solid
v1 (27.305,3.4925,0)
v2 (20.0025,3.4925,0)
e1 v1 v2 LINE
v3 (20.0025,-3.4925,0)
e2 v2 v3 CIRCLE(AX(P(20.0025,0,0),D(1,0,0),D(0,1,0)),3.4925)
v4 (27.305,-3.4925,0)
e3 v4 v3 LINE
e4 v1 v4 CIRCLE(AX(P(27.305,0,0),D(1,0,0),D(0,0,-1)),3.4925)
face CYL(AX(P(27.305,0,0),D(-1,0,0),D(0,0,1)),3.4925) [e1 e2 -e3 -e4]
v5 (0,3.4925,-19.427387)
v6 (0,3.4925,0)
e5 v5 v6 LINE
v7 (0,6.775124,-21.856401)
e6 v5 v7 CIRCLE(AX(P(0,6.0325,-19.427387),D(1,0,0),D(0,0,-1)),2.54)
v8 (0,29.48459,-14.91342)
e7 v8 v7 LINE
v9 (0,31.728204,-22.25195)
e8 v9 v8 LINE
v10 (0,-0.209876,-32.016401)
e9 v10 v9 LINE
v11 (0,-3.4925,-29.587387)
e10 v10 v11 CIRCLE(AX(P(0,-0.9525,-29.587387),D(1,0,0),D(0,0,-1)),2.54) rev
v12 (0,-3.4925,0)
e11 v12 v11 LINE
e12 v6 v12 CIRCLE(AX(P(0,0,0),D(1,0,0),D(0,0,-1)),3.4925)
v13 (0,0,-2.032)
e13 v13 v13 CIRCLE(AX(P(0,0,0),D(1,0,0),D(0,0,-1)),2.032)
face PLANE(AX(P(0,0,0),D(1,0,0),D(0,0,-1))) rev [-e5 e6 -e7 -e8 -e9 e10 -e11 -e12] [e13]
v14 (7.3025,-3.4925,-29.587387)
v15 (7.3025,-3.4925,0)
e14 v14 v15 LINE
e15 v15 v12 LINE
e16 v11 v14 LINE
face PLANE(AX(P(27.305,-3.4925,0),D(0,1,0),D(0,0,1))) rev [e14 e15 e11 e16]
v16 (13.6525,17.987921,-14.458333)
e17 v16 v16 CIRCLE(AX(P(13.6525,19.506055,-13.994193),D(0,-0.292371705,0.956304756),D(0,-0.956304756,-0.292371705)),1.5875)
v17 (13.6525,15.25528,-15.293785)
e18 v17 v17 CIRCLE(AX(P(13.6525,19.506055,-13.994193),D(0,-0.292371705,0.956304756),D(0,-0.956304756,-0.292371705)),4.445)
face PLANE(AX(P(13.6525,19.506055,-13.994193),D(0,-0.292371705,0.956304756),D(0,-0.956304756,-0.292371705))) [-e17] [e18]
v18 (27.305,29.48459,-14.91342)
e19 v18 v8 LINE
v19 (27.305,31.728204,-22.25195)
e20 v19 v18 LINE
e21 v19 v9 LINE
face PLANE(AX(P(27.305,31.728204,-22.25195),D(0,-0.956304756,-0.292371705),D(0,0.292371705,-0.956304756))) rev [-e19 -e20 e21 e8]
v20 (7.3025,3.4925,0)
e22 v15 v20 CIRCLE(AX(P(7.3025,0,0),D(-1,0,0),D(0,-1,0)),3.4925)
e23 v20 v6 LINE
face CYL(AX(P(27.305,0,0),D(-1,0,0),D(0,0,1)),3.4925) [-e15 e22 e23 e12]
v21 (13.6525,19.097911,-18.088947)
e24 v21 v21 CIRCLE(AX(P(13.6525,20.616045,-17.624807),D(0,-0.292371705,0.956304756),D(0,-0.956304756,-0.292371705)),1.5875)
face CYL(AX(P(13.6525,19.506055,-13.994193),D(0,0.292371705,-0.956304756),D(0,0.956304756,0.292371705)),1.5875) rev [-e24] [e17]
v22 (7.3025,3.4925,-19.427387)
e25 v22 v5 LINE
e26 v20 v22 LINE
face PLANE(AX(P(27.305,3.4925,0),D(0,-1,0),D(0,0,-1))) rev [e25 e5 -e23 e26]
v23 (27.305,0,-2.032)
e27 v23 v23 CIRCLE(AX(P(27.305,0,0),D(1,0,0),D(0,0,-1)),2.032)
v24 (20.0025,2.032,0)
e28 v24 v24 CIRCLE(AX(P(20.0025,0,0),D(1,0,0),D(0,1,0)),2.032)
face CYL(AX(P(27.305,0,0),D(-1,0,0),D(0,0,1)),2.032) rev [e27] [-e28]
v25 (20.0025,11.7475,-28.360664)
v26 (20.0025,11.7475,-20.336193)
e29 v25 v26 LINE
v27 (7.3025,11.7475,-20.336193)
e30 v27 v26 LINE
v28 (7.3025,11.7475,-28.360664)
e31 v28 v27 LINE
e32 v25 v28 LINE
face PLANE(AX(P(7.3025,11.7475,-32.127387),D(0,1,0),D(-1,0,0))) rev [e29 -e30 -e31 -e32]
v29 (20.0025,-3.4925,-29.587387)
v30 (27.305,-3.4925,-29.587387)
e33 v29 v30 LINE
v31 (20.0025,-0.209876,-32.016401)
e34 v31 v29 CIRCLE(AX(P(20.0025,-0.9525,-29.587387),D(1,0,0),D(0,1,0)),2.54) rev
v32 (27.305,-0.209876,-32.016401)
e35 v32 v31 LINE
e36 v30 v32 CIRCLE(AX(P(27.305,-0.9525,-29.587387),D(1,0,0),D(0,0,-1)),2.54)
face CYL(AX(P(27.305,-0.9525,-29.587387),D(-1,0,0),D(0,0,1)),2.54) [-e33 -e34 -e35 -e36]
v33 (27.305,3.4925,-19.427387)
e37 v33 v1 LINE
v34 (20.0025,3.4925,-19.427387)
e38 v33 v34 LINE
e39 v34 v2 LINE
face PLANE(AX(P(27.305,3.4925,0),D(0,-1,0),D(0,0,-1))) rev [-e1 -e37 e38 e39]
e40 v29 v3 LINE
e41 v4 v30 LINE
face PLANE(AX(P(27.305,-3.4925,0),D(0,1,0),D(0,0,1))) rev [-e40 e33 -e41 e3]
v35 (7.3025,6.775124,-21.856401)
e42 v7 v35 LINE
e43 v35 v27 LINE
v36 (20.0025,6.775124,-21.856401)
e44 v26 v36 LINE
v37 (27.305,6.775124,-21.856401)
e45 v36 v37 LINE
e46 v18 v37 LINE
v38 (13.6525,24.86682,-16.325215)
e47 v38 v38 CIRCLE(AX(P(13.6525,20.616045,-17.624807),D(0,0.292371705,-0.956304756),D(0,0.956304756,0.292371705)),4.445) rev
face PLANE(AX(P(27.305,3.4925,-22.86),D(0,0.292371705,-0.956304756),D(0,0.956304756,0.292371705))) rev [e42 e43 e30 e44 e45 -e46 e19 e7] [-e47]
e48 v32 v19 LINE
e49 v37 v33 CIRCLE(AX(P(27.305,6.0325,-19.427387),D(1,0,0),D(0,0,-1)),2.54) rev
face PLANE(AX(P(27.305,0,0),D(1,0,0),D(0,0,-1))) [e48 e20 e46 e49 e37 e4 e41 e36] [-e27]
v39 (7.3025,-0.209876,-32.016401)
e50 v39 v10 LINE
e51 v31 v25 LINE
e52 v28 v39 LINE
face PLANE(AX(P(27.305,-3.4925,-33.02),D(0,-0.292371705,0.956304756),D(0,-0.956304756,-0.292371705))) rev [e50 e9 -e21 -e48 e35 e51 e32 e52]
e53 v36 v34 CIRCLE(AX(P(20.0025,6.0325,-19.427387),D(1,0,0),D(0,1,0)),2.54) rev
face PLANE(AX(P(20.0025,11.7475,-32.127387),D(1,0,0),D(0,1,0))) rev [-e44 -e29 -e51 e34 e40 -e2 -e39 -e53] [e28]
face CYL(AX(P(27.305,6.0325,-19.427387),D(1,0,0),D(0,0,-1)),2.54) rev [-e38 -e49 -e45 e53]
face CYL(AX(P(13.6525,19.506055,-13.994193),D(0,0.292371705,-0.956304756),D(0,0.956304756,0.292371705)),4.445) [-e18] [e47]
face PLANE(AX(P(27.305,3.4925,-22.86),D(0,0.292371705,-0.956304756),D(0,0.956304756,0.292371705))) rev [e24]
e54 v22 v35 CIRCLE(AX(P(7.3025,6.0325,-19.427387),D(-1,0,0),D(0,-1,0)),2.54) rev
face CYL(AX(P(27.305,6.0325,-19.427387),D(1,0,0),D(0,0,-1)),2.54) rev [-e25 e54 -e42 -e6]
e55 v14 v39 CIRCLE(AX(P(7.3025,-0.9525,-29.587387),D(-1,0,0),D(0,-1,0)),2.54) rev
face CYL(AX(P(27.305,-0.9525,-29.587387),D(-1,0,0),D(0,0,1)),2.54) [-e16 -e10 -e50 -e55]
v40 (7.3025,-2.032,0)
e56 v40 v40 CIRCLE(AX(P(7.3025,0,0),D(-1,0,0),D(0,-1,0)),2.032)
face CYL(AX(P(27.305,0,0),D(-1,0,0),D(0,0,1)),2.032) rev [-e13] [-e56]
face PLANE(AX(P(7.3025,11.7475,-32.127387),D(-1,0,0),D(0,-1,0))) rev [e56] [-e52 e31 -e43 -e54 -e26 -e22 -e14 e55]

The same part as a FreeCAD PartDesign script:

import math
import FreeCAD as App
import Part
import Sketcher

V = App.Vector
Q = App.Units.Quantity


def edges_at(feature, points):
    """Names of the edges that pass closest to the given points."""
    edges = feature.Shape.Edges
    near = lambda p: min(range(len(edges)), key=lambda i: edges[i].distToShape(Part.Vertex(*p))[0])
    return sorted({f"Edge{near(p) + 1}" for p in points})

doc = App.newDocument("Part")
body = doc.addObject("PartDesign::Body", "Body")

# Sketch on YZ plane
sketch1 = body.newObject("Sketcher::SketchObject", "Sketch")
sketch1.AttachmentSupport = (doc.getObject("YZ_Plane"), [""])
sketch1.MapMode = "FlatFace"
sketch1.addGeometry([
    Part.LineSegment(V(3.5, -22.9, 0), V(3.5, 0, 0)),  # 0
    Part.ArcOfCircle(Part.Circle(V(0, 0, 0), V(0, 0, 1), 3.5), math.radians(0), math.radians(180)),  # 1
    Part.LineSegment(V(-3.5, 0, 0), V(-3.5, -33, 0)),  # 2
    Part.LineSegment(V(-3.5, -33, 0), V(31.7, -22.3, 0)),  # 3
    Part.LineSegment(V(31.7, -22.3, 0), V(29.5, -14.9, 0)),  # 4
    Part.LineSegment(V(29.5, -14.9, 0), V(3.5, -22.9, 0)),  # 5
    Part.Circle(V(0, 0, 0), V(0, 0, 1), 2),  # 6
], False)
sketch1.addConstraint([
    Sketcher.Constraint("Tangent", 0, 2, 1, 1),
    Sketcher.Constraint("Tangent", 1, 2, 2, 1),
    Sketcher.Constraint("Coincident", 2, 2, 3, 1),
    Sketcher.Constraint("Coincident", 3, 2, 4, 1),
    Sketcher.Constraint("Coincident", 4, 2, 5, 1),
    Sketcher.Constraint("Coincident", 5, 2, 0, 1),
    Sketcher.Constraint("Vertical", 0),
    Sketcher.Constraint("Vertical", 2),
    Sketcher.Constraint("Coincident", 1, 3, -1, 1),
    Sketcher.Constraint("Coincident", 6, 3, -1, 1),
    Sketcher.Constraint("Perpendicular", 3, 4),
    Sketcher.Constraint("Perpendicular", 4, 5),
    Sketcher.Constraint("Diameter", 6, Q("0.16 in")),
    Sketcher.Constraint("DistanceY", 0, 1, 0, 2, Q("0.9 in")),
    Sketcher.Constraint("DistanceY", 2, 2, 2, 1, Q("1.3 in")),
    Sketcher.Constraint("Angle", 3, Q("17 deg")),
    Sketcher.Constraint("Radius", 1, Q("0.1375 in")),
    Sketcher.Constraint("Distance", 3, Q("1.45 in")),
])
pad1 = body.newObject("PartDesign::Pad", "Pad")
pad1.Profile = sketch1
pad1.Length = Q("1.075 in")
doc.recompute()

fillet = body.newObject("PartDesign::Fillet", "Fillet")
fillet.Base = (pad1, edges_at(pad1, [(13.652, 3.493, -22.86), (13.652, -3.493, -33.02)]))
fillet.Radius = Q("0.1 in")

# Sketch on XY plane
sketch2 = body.newObject("Sketcher::SketchObject", "Sketch001")
sketch2.AttachmentSupport = (doc.getObject("XY_Plane"), [""])
sketch2.MapMode = "FlatFace"
sketch2.addGeometry([
    Part.LineSegment(V(7, 12, 0), V(7, -3, 0)),
    Part.LineSegment(V(7, -3, 0), V(20, -3, 0)),
    Part.LineSegment(V(20, -3, 0), V(20, 12, 0)),
    Part.LineSegment(V(20, 12, 0), V(7, 12, 0)),
], False)
sketch2.addConstraint([
    Sketcher.Constraint("Coincident", 0, 2, 1, 1),
    Sketcher.Constraint("Coincident", 1, 2, 2, 1),
    Sketcher.Constraint("Coincident", 2, 2, 3, 1),
    Sketcher.Constraint("Coincident", 3, 2, 0, 1),
    Sketcher.Constraint("Vertical", 0),
    Sketcher.Constraint("Horizontal", 1),
    Sketcher.Constraint("Vertical", 2),
    Sketcher.Constraint("Horizontal", 3),
    Sketcher.Constraint("DistanceX", 1, 1, 1, 2, Q("0.5 in")),
    Sketcher.Constraint("DistanceY", 0, 2, 0, 1, Q("0.6 in")),
    Sketcher.Constraint("DistanceX", -1, 1, 0, 2, Q("0.2875 in")),
    Sketcher.Constraint("DistanceY", 0, 2, -1, 1, Q("0.1375 in")),
])
pocket1 = body.newObject("PartDesign::Pocket", "Pocket")
pocket1.Profile = sketch2
pocket1.Type = "ThroughAll"
pocket1.Midplane = True

# Sketch on an angled plane
sketch3 = body.newObject("Sketcher::SketchObject", "Sketch002")
sketch3.Placement = App.Placement(V(0, 6.690118, -21.88239), App.Rotation(V(1, 0, 0), V(0, 0.956304756, 0.292371705), V(0, -0.292371705, 0.956304756), "ZXY"))
sketch3.addGeometry([
    Part.Circle(V(13.7, 14.6, 0), V(0, 0, 1), 4.4),
    Part.Circle(V(13.7, 14.6, 0), V(0, 0, 1), 1.6),
], False)
sketch3.addConstraint([
    Sketcher.Constraint("Coincident", 1, 3, 0, 3),
    Sketcher.Constraint("Diameter", 0, Q("0.35 in")),
    Sketcher.Constraint("Diameter", 1, Q("0.125 in")),
    Sketcher.Constraint("DistanceX", -1, 1, 0, 3, Q("0.5375 in")),
    Sketcher.Constraint("DistanceY", -1, 1, 0, 3, 14.562227),
])
pad2 = body.newObject("PartDesign::Pad", "Pad001")
pad2.Profile = sketch3
pad2.Length = 3.796503

doc.recompute()
